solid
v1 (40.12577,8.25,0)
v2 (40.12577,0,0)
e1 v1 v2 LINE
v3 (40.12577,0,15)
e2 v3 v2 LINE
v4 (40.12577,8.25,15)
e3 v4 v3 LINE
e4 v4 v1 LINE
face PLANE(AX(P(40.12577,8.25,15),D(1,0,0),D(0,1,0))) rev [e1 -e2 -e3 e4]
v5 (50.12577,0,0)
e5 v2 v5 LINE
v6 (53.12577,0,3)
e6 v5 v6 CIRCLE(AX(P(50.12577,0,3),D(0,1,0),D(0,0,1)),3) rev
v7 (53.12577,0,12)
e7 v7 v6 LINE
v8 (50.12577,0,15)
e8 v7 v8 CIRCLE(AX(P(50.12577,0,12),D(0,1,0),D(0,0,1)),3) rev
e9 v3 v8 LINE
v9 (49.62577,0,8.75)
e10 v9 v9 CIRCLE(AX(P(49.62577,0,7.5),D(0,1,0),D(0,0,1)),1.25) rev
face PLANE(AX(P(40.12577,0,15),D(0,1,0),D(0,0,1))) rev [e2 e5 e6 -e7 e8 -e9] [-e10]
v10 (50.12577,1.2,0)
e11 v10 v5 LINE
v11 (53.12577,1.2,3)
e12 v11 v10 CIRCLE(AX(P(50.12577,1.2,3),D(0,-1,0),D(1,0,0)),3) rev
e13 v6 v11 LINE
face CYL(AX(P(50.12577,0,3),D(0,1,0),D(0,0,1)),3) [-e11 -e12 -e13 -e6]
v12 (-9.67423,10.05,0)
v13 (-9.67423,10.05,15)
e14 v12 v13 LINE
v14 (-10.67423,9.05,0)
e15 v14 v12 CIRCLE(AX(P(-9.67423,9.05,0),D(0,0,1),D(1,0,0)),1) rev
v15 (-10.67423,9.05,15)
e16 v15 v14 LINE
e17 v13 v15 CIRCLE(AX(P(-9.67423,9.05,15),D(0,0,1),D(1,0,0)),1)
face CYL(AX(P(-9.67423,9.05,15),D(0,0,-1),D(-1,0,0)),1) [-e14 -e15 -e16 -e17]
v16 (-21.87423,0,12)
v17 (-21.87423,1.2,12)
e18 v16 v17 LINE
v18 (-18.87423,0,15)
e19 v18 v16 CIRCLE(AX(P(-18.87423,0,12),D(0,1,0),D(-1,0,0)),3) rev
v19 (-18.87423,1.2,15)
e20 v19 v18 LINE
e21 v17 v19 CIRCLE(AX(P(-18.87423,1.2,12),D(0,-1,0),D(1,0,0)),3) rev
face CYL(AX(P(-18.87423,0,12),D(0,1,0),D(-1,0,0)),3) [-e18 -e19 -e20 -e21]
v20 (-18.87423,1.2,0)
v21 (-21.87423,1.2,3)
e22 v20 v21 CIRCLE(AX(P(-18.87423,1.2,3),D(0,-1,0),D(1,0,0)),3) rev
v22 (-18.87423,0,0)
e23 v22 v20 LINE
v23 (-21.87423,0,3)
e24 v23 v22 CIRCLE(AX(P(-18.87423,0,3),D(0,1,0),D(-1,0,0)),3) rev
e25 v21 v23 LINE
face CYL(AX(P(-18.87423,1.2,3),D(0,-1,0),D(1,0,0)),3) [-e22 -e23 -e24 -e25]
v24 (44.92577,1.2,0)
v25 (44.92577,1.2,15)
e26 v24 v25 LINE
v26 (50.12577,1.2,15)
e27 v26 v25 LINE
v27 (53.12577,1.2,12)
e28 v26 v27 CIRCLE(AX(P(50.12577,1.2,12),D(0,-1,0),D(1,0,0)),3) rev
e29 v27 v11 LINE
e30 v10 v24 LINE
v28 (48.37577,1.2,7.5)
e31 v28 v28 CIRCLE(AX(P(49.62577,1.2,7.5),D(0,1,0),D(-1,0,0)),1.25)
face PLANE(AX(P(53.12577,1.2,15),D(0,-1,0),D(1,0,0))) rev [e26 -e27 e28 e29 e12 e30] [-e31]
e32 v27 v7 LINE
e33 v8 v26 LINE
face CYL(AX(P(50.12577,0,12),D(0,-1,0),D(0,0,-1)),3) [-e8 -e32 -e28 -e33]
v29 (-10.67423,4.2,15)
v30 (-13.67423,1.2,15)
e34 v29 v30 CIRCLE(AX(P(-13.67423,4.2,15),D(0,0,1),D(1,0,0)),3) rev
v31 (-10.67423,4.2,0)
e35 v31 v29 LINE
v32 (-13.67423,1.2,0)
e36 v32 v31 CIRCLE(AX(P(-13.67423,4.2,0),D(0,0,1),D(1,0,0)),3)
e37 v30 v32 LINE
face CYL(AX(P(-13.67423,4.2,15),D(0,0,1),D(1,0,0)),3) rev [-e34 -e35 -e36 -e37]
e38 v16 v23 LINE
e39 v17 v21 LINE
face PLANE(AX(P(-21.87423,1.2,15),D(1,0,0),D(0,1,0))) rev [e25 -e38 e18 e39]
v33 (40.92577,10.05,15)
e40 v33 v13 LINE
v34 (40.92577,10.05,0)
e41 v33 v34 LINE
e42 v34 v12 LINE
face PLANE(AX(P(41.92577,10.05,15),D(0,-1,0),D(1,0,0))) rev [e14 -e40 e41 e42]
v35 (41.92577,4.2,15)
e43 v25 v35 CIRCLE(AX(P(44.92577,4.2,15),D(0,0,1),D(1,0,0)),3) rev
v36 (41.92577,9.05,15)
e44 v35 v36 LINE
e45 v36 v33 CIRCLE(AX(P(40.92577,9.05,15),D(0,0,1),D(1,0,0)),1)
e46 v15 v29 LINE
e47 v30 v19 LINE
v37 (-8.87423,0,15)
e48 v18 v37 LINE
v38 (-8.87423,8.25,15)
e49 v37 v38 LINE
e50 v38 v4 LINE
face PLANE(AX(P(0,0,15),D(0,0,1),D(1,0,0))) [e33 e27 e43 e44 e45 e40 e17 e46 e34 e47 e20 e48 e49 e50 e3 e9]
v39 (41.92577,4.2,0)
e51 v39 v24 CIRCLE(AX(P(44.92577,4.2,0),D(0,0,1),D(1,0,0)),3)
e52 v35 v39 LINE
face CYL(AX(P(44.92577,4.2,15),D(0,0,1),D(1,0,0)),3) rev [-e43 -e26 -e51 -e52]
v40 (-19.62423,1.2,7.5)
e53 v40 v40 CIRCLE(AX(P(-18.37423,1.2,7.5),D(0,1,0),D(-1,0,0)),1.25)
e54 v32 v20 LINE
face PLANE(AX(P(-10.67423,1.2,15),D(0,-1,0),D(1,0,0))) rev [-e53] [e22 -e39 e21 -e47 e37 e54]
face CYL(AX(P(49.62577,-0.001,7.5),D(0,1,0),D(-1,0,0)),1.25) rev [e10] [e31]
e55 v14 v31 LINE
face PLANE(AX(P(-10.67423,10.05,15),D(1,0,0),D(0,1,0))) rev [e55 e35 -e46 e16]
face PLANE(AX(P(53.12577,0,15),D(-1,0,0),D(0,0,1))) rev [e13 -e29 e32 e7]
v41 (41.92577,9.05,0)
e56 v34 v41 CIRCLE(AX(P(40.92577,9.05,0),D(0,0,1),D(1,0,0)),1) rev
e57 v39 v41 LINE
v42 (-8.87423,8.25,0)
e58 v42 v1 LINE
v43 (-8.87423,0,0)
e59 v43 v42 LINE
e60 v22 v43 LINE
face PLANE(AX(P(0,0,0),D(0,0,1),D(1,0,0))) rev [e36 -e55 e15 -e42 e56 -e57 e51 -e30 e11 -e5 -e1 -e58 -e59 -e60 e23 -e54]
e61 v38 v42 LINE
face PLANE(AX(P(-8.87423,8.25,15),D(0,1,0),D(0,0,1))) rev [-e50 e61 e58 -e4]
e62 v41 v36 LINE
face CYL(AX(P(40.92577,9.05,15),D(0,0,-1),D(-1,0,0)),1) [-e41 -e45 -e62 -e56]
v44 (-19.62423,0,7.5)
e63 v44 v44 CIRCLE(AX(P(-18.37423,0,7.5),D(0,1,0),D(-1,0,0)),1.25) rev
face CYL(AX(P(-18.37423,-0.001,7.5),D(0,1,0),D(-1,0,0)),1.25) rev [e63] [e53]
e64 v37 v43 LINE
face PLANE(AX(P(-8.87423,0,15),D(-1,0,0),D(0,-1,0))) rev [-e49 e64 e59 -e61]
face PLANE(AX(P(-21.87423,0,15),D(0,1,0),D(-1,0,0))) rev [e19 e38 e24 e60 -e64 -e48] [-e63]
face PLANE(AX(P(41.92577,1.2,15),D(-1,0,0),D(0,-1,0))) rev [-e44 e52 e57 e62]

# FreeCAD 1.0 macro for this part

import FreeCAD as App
import Part
import Sketcher
Q = App.Units.Quantity


def edges_at(feature, points):
    """Names of the edges that pass closest to the given points."""
    edges = feature.Shape.Edges
    near = lambda p: min(range(len(edges)), key=lambda i: edges[i].distToShape(Part.Vertex(*p))[0])
    return sorted({f"Edge{near(p) + 1}" for p in points})

doc = App.newDocument("Part")
body = doc.addObject("PartDesign::Body", "Body")

sketch1 = doc.addObject("Sketcher::SketchObject", "Sketch")
body.addObject(sketch1)
sketch1.AttachmentSupport = (doc.XY_Plane, [""])
sketch1.MapMode = "FlatFace"
sketch1.addGeometry([
    Part.LineSegment(App.Vector(-21.9, 0, 0), App.Vector(-8.9, 0, 0)),
    Part.LineSegment(App.Vector(-8.9, 0, 0), App.Vector(-8.9, 8.2, 0)),
    Part.LineSegment(App.Vector(-8.9, 8.2, 0), App.Vector(40.1, 8.2, 0)),
    Part.LineSegment(App.Vector(40.1, 8.2, 0), App.Vector(40.1, 0, 0)),
    Part.LineSegment(App.Vector(40.1, 0, 0), App.Vector(53.1, 0, 0)),
    Part.LineSegment(App.Vector(53.1, 0, 0), App.Vector(53.1, 1.2, 0)),
    Part.LineSegment(App.Vector(53.1, 1.2, 0), App.Vector(41.9, 1.2, 0)),
    Part.LineSegment(App.Vector(41.9, 1.2, 0), App.Vector(41.9, 10.1, 0)),
    Part.LineSegment(App.Vector(41.9, 10.1, 0), App.Vector(-10.7, 10.1, 0)),
    Part.LineSegment(App.Vector(-10.7, 10.1, 0), App.Vector(-10.7, 1.2, 0)),
    Part.LineSegment(App.Vector(-10.7, 1.2, 0), App.Vector(-21.9, 1.2, 0)),
    Part.LineSegment(App.Vector(-21.9, 1.2, 0), App.Vector(-21.9, 0, 0)),
], False)
sketch1.addConstraint([
    Sketcher.Constraint("Coincident", 0, 2, 1, 1),
    Sketcher.Constraint("Coincident", 1, 2, 2, 1),
    Sketcher.Constraint("Coincident", 2, 2, 3, 1),
    Sketcher.Constraint("Coincident", 3, 2, 4, 1),
    Sketcher.Constraint("Coincident", 4, 2, 5, 1),
    Sketcher.Constraint("Coincident", 5, 2, 6, 1),
    Sketcher.Constraint("Coincident", 6, 2, 7, 1),
    Sketcher.Constraint("Coincident", 7, 2, 8, 1),
    Sketcher.Constraint("Coincident", 8, 2, 9, 1),
    Sketcher.Constraint("Coincident", 9, 2, 10, 1),
    Sketcher.Constraint("Coincident", 10, 2, 11, 1),
    Sketcher.Constraint("Coincident", 11, 2, 0, 1),
    Sketcher.Constraint("Horizontal", 0),
    Sketcher.Constraint("Vertical", 1),
    Sketcher.Constraint("Horizontal", 2),
    Sketcher.Constraint("Vertical", 3),
    Sketcher.Constraint("Horizontal", 4),
    Sketcher.Constraint("Vertical", 5),
    Sketcher.Constraint("Horizontal", 6),
    Sketcher.Constraint("Vertical", 7),
    Sketcher.Constraint("Horizontal", 8),
    Sketcher.Constraint("Vertical", 9),
    Sketcher.Constraint("Horizontal", 10),
    Sketcher.Constraint("Vertical", 11),
    Sketcher.Constraint("PointOnObject", 0, 2, -1),
    Sketcher.Constraint("PointOnObject", 3, 2, -1),
    Sketcher.Constraint("Horizontal", 6, 2, 9, 2),
    Sketcher.Constraint("Equal", 0, 4),
    Sketcher.Constraint("Equal", 6, 10),
    Sketcher.Constraint("DistanceX", 0, 1, 0, 2, Q("13 mm")),
    Sketcher.Constraint("DistanceX", 2, 1, 2, 2, Q("49 mm")),
    Sketcher.Constraint("DistanceX", 6, 2, 6, 1, Q("11.2 mm")),
    Sketcher.Constraint("DistanceY", 5, 1, 5, 2, Q("1.2 mm")),
    Sketcher.Constraint("DistanceY", 1, 1, 1, 2, Q("8.25 mm")),
    Sketcher.Constraint("DistanceY", 7, 1, 7, 2, Q("8.85 mm")),
    Sketcher.Constraint("DistanceX", 0, 2, -1, 1, Q("8.87423 mm")),
])
pad1 = doc.addObject("PartDesign::Pad", "Pad")
body.addObject(pad1)
pad1.Profile = sketch1
pad1.Length = 15

sketch2 = doc.addObject("Sketcher::SketchObject", "Sketch001")
body.addObject(sketch2)
sketch2.AttachmentSupport = (doc.XZ_Plane, [""])
sketch2.MapMode = "FlatFace"
sketch2.AttachmentOffset = App.Placement(App.Vector(0, 0, -1.2), App.Rotation())
sketch2.addGeometry(Part.Circle(App.Vector(-18.4, 7.5, 0), App.Vector(0, 0, 1), 1.2), False)
sketch2.addConstraint([
    Sketcher.Constraint("Diameter", 0, Q("2.5 mm")),
    Sketcher.Constraint("DistanceY", -1, 1, 0, 3, Q("7.5 mm")),
    Sketcher.Constraint("DistanceX", 0, 3, -1, 1, Q("18.37423 mm")),
])
pocket1 = doc.addObject("PartDesign::Pocket", "Pocket")
body.addObject(pocket1)
pocket1.Profile = sketch2
pocket1.Type = "UpToFirst"
pocket1.Reversed = True

sketch3 = doc.addObject("Sketcher::SketchObject", "Sketch002")
body.addObject(sketch3)
sketch3.AttachmentSupport = (doc.XZ_Plane, [""])
sketch3.MapMode = "FlatFace"
sketch3.AttachmentOffset = App.Placement(App.Vector(0, 0, -1.2), App.Rotation())
sketch3.addGeometry(Part.Circle(App.Vector(49.6, 7.5, 0), App.Vector(0, 0, 1), 1.2), False)
sketch3.addConstraint([
    Sketcher.Constraint("Diameter", 0, Q("2.5 mm")),
    Sketcher.Constraint("DistanceY", -1, 1, 0, 3, Q("7.5 mm")),
    Sketcher.Constraint("DistanceX", -1, 1, 0, 3, Q("49.62577 mm")),
])
pocket2 = doc.addObject("PartDesign::Pocket", "Pocket001")
body.addObject(pocket2)
pocket2.Profile = sketch3
pocket2.Type = "UpToFirst"
pocket2.Reversed = True
doc.recompute()

fillet = doc.addObject("PartDesign::Fillet", "Fillet")
body.addObject(fillet)
fillet.Base = (pocket2, edges_at(pocket2, [
    (53.126, 0.6, 0),
    (-21.874, 0.6, 0),
    (-10.674, 1.2, 7.5),
    (41.926, 1.2, 7.5),
    (53.126, 0.6, 15),
    (-21.874, 0.6, 15),
]))
fillet.Radius = 3
doc.recompute()

fillet2 = doc.addObject("PartDesign::Fillet", "Fillet001")
body.addObject(fillet2)
fillet2.Base = (fillet, edges_at(fillet, [(-10.674, 10.05, 7.5), (41.926, 10.05, 7.5)]))
fillet2.Radius = 1

doc.recompute()
